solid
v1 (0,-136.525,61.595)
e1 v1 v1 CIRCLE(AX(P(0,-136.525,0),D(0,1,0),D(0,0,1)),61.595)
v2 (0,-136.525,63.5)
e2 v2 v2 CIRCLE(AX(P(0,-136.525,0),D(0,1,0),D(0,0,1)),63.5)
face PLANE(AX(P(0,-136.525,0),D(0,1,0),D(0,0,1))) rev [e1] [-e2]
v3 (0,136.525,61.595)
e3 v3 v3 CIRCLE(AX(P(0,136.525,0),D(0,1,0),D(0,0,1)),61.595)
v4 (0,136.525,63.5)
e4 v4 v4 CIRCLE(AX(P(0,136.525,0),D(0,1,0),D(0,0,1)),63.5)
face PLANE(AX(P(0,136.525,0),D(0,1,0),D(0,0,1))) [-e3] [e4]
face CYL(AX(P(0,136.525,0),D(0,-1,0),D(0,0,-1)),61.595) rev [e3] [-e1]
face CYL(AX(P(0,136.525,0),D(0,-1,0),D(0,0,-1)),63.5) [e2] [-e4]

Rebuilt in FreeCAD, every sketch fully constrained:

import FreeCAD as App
import Part
import Sketcher
from FreeCAD import Vector
Q = App.Units.Quantity

doc = App.newDocument("Part")
body = doc.addObject("PartDesign::Body", "Body")

# Sketch on XZ plane
sketch1 = body.newObject("Sketcher::SketchObject", "Sketch")
sketch1.AttachmentSupport = (doc.getObject("XZ_Plane"), [""])
sketch1.MapMode = "FlatFace"
sketch1.addGeometry([
    Part.Circle(Vector(0, 0, 0), Vector(0, 0, 1), 63.5),
    Part.Circle(Vector(0, 0, 0), Vector(0, 0, 1), 61.595),
], False)
sketch1.addConstraint([
    Sketcher.Constraint("Coincident", 0, 3, -1, 1),
    Sketcher.Constraint("Coincident", 1, 3, -1, 1),
    Sketcher.Constraint("Diameter", 0, Q("5 in")),
    Sketcher.Constraint("Diameter", 1, Q("4.85 in")),
])
pad1 = body.newObject("PartDesign::Pad", "Pad")
pad1.Profile = sketch1
pad1.Length = Q("10.75 in")
pad1.Midplane = True

doc.recompute()
